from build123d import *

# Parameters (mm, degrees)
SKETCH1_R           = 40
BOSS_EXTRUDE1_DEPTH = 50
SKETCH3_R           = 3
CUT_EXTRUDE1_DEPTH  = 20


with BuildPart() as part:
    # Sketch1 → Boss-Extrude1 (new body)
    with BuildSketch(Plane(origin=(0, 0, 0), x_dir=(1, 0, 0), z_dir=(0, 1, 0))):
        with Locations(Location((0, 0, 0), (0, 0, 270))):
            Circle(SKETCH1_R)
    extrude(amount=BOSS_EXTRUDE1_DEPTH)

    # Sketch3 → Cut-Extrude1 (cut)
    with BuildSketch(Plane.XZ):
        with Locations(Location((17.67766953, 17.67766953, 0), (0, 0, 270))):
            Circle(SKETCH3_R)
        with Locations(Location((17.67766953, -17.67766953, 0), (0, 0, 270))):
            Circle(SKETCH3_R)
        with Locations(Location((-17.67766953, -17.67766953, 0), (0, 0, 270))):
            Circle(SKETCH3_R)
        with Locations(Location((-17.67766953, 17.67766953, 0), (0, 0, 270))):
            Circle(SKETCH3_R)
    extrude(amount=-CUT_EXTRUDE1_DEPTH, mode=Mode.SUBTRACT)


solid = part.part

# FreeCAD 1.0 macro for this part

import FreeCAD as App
import Part
import Sketcher
from FreeCAD import Vector
Q = App.Units.Quantity

doc = App.newDocument("Part")
body = doc.addObject("PartDesign::Body", "Body")

# Sketch on XZ plane
sketch1 = doc.addObject("Sketcher::SketchObject", "Sketch")
body.addObject(sketch1)
sketch1.AttachmentSupport = (doc.XZ_Plane, [""])
sketch1.MapMode = "FlatFace"
sketch1.addGeometry(Part.Circle(Vector(0, 0, 0), Vector(0, 0, 1), 40), False)
sketch1.addConstraint(Sketcher.Constraint("Coincident", 0, 3, -1, 1))
sketch1.addConstraint(Sketcher.Constraint("Diameter", 0, Q("80 mm")))
pad1 = doc.addObject("PartDesign::Pad", "Pad")
body.addObject(pad1)
pad1.Profile = sketch1
pad1.Length = 50
pad1.Reversed = True

# Sketch on XZ plane
sketch2 = doc.addObject("Sketcher::SketchObject", "Sketch001")
body.addObject(sketch2)
sketch2.AttachmentSupport = (doc.XZ_Plane, [""])
sketch2.MapMode = "FlatFace"
sketch2.addGeometry(Part.Circle(Vector(17.7, 17.7, 0), Vector(0, 0, 1), 3), False)
sketch2.addGeometry(Part.Circle(Vector(17.7, -17.7, 0), Vector(0, 0, 1), 3), False)
sketch2.addGeometry(Part.Circle(Vector(-17.7, -17.7, 0), Vector(0, 0, 1), 3), False)
sketch2.addGeometry(Part.Circle(Vector(-17.7, 17.7, 0), Vector(0, 0, 1), 3), False)
sketch2.addConstraint(Sketcher.Constraint("Equal", 0, 1))
sketch2.addConstraint(Sketcher.Constraint("Equal", 1, 2))
sketch2.addConstraint(Sketcher.Constraint("Equal", 2, 3))
sketch2.addConstraint(Sketcher.Constraint("Symmetric", 0, 3, 2, 3, -1, 1))
sketch2.addConstraint(Sketcher.Constraint("Symmetric", 1, 3, 3, 3, -1, 1))
sketch2.addConstraint(Sketcher.Constraint("Symmetric", 1, 3, 2, 3, -2))
sketch2.addConstraint(Sketcher.Constraint("Diameter", 0, Q("6 mm")))
sketch2.addConstraint(Sketcher.Constraint("DistanceX", -1, 1, 0, 3, Q("17.67767 mm")))
sketch2.addConstraint(Sketcher.Constraint("DistanceY", -1, 1, 0, 3, Q("17.67767 mm")))
pocket1 = doc.addObject("PartDesign::Pocket", "Pocket")
body.addObject(pocket1)
pocket1.Profile = sketch2
pocket1.Length = 20

doc.recompute()
